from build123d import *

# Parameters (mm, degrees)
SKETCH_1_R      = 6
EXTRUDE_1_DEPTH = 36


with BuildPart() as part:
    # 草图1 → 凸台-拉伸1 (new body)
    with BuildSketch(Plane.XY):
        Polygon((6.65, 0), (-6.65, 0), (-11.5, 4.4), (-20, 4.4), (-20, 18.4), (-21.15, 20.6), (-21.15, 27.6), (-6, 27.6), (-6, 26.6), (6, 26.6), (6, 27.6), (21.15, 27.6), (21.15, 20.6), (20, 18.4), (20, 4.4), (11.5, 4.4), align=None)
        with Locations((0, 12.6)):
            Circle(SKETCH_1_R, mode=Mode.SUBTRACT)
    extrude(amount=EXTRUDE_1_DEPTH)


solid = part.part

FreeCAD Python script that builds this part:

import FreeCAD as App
import Part
import Sketcher

doc = App.newDocument("Part")
body = doc.addObject("PartDesign::Body", "Body")

# Sketch on XY plane
sketch1 = body.newObject("Sketcher::SketchObject", "Sketch")
sketch1.AttachmentSupport = (doc.getObject("XY_Plane"), [""])
sketch1.MapMode = "FlatFace"
sketch1.addGeometry(Part.LineSegment(App.Vector(-6.65, 0, 0), App.Vector(6.65, 0, 0)), False)
sketch1.addGeometry(Part.LineSegment(App.Vector(6.65, 0, 0), App.Vector(11.5, 4.4, 0)), False)
sketch1.addGeometry(Part.LineSegment(App.Vector(11.5, 4.4, 0), App.Vector(20, 4.4, 0)), False)
sketch1.addGeometry(Part.LineSegment(App.Vector(20, 4.4, 0), App.Vector(20, 18.4, 0)), False)
sketch1.addGeometry(Part.LineSegment(App.Vector(20, 18.4, 0), App.Vector(21.15, 20.6, 0)), False)
sketch1.addGeometry(Part.LineSegment(App.Vector(21.15, 20.6, 0), App.Vector(21.15, 27.6, 0)), False)
sketch1.addGeometry(Part.LineSegment(App.Vector(21.15, 27.6, 0), App.Vector(6, 27.6, 0)), False)
sketch1.addGeometry(Part.LineSegment(App.Vector(6, 27.6, 0), App.Vector(6, 26.6, 0)), False)
sketch1.addGeometry(Part.LineSegment(App.Vector(6, 26.6, 0), App.Vector(-6, 26.6, 0)), False)
sketch1.addGeometry(Part.LineSegment(App.Vector(-6, 26.6, 0), App.Vector(-6, 27.6, 0)), False)
sketch1.addGeometry(Part.LineSegment(App.Vector(-6, 27.6, 0), App.Vector(-21.15, 27.6, 0)), False)
sketch1.addGeometry(Part.LineSegment(App.Vector(-21.15, 27.6, 0), App.Vector(-21.15, 20.6, 0)), False)
sketch1.addGeometry(Part.LineSegment(App.Vector(-21.15, 20.6, 0), App.Vector(-20, 18.4, 0)), False)
sketch1.addGeometry(Part.LineSegment(App.Vector(-20, 18.4, 0), App.Vector(-20, 4.4, 0)), False)
sketch1.addGeometry(Part.LineSegment(App.Vector(-20, 4.4, 0), App.Vector(-11.5, 4.4, 0)), False)
sketch1.addGeometry(Part.LineSegment(App.Vector(-11.5, 4.4, 0), App.Vector(-6.65, 0, 0)), False)
sketch1.addGeometry(Part.Circle(App.Vector(0, 12.6, 0), App.Vector(0, 0, 1), 6), False)
sketch1.addConstraint(Sketcher.Constraint("Coincident", 0, 2, 1, 1))
sketch1.addConstraint(Sketcher.Constraint("Coincident", 1, 2, 2, 1))
sketch1.addConstraint(Sketcher.Constraint("Coincident", 2, 2, 3, 1))
sketch1.addConstraint(Sketcher.Constraint("Coincident", 3, 2, 4, 1))
sketch1.addConstraint(Sketcher.Constraint("Coincident", 4, 2, 5, 1))
sketch1.addConstraint(Sketcher.Constraint("Coincident", 5, 2, 6, 1))
sketch1.addConstraint(Sketcher.Constraint("Coincident", 6, 2, 7, 1))
sketch1.addConstraint(Sketcher.Constraint("Coincident", 7, 2, 8, 1))
sketch1.addConstraint(Sketcher.Constraint("Coincident", 8, 2, 9, 1))
sketch1.addConstraint(Sketcher.Constraint("Coincident", 9, 2, 10, 1))
sketch1.addConstraint(Sketcher.Constraint("Coincident", 10, 2, 11, 1))
sketch1.addConstraint(Sketcher.Constraint("Coincident", 11, 2, 12, 1))
sketch1.addConstraint(Sketcher.Constraint("Coincident", 12, 2, 13, 1))
sketch1.addConstraint(Sketcher.Constraint("Coincident", 13, 2, 14, 1))
sketch1.addConstraint(Sketcher.Constraint("Coincident", 14, 2, 15, 1))
sketch1.addConstraint(Sketcher.Constraint("Coincident", 15, 2, 0, 1))
sketch1.addConstraint(Sketcher.Constraint("Horizontal", 0))
sketch1.addConstraint(Sketcher.Constraint("Horizontal", 2))
sketch1.addConstraint(Sketcher.Constraint("Vertical", 3))
sketch1.addConstraint(Sketcher.Constraint("Vertical", 5))
sketch1.addConstraint(Sketcher.Constraint("Horizontal", 6))
sketch1.addConstraint(Sketcher.Constraint("Vertical", 7))
sketch1.addConstraint(Sketcher.Constraint("Horizontal", 8))
sketch1.addConstraint(Sketcher.Constraint("Vertical", 9))
sketch1.addConstraint(Sketcher.Constraint("Horizontal", 10))
sketch1.addConstraint(Sketcher.Constraint("Vertical", 11))
sketch1.addConstraint(Sketcher.Constraint("Vertical", 13))
sketch1.addConstraint(Sketcher.Constraint("Horizontal", 14))
sketch1.addConstraint(Sketcher.Constraint("Symmetric", 0, 2, 15, 2, -1, 1))
sketch1.addConstraint(Sketcher.Constraint("Symmetric", 6, 2, 9, 2, -2))
sketch1.addConstraint(Sketcher.Constraint("Symmetric", 4, 2, 11, 2, -2))
sketch1.addConstraint(Sketcher.Constraint("Symmetric", 3, 2, 12, 2, -2))
sketch1.addConstraint(Sketcher.Constraint("Symmetric", 1, 2, 14, 2, -2))
sketch1.addConstraint(Sketcher.Constraint("PointOnObject", 16, 3, -2))
sketch1.addConstraint(Sketcher.Constraint("Diameter", 16, 12.0))
sketch1.addConstraint(Sketcher.Constraint("DistanceX", 8, 2, 8, 1, 12.0))
sketch1.addConstraint(Sketcher.Constraint("DistanceY", 3, 1, 3, 2, 14.0))
sketch1.addConstraint(Sketcher.Constraint("DistanceY", 5, 1, 5, 2, 7.0))
sketch1.addConstraint(Sketcher.Constraint("DistanceY", 7, 2, 7, 1, 1.0))
sketch1.addConstraint(Sketcher.Constraint("DistanceX", 0, 1, 0, 2, 13.3))
sketch1.addConstraint(Sketcher.Constraint("DistanceX", 2, 1, 2, 2, 8.5))
sketch1.addConstraint(Sketcher.Constraint("DistanceX", -1, 1, 2, 2, 20.0))
sketch1.addConstraint(Sketcher.Constraint("DistanceY", 16, 3, 4, 2, 8.0))
sketch1.addConstraint(Sketcher.Constraint("DistanceX", 6, 2, 6, 1, 15.15))
sketch1.addConstraint(Sketcher.Constraint("DistanceY", -1, 1, 16, 3, 12.6))
sketch1.addConstraint(Sketcher.Constraint("DistanceY", -1, 1, 1, 2, 4.4))
pad1 = body.newObject("PartDesign::Pad", "Pad")
pad1.Profile = sketch1
pad1.Length = 36

doc.recompute()
